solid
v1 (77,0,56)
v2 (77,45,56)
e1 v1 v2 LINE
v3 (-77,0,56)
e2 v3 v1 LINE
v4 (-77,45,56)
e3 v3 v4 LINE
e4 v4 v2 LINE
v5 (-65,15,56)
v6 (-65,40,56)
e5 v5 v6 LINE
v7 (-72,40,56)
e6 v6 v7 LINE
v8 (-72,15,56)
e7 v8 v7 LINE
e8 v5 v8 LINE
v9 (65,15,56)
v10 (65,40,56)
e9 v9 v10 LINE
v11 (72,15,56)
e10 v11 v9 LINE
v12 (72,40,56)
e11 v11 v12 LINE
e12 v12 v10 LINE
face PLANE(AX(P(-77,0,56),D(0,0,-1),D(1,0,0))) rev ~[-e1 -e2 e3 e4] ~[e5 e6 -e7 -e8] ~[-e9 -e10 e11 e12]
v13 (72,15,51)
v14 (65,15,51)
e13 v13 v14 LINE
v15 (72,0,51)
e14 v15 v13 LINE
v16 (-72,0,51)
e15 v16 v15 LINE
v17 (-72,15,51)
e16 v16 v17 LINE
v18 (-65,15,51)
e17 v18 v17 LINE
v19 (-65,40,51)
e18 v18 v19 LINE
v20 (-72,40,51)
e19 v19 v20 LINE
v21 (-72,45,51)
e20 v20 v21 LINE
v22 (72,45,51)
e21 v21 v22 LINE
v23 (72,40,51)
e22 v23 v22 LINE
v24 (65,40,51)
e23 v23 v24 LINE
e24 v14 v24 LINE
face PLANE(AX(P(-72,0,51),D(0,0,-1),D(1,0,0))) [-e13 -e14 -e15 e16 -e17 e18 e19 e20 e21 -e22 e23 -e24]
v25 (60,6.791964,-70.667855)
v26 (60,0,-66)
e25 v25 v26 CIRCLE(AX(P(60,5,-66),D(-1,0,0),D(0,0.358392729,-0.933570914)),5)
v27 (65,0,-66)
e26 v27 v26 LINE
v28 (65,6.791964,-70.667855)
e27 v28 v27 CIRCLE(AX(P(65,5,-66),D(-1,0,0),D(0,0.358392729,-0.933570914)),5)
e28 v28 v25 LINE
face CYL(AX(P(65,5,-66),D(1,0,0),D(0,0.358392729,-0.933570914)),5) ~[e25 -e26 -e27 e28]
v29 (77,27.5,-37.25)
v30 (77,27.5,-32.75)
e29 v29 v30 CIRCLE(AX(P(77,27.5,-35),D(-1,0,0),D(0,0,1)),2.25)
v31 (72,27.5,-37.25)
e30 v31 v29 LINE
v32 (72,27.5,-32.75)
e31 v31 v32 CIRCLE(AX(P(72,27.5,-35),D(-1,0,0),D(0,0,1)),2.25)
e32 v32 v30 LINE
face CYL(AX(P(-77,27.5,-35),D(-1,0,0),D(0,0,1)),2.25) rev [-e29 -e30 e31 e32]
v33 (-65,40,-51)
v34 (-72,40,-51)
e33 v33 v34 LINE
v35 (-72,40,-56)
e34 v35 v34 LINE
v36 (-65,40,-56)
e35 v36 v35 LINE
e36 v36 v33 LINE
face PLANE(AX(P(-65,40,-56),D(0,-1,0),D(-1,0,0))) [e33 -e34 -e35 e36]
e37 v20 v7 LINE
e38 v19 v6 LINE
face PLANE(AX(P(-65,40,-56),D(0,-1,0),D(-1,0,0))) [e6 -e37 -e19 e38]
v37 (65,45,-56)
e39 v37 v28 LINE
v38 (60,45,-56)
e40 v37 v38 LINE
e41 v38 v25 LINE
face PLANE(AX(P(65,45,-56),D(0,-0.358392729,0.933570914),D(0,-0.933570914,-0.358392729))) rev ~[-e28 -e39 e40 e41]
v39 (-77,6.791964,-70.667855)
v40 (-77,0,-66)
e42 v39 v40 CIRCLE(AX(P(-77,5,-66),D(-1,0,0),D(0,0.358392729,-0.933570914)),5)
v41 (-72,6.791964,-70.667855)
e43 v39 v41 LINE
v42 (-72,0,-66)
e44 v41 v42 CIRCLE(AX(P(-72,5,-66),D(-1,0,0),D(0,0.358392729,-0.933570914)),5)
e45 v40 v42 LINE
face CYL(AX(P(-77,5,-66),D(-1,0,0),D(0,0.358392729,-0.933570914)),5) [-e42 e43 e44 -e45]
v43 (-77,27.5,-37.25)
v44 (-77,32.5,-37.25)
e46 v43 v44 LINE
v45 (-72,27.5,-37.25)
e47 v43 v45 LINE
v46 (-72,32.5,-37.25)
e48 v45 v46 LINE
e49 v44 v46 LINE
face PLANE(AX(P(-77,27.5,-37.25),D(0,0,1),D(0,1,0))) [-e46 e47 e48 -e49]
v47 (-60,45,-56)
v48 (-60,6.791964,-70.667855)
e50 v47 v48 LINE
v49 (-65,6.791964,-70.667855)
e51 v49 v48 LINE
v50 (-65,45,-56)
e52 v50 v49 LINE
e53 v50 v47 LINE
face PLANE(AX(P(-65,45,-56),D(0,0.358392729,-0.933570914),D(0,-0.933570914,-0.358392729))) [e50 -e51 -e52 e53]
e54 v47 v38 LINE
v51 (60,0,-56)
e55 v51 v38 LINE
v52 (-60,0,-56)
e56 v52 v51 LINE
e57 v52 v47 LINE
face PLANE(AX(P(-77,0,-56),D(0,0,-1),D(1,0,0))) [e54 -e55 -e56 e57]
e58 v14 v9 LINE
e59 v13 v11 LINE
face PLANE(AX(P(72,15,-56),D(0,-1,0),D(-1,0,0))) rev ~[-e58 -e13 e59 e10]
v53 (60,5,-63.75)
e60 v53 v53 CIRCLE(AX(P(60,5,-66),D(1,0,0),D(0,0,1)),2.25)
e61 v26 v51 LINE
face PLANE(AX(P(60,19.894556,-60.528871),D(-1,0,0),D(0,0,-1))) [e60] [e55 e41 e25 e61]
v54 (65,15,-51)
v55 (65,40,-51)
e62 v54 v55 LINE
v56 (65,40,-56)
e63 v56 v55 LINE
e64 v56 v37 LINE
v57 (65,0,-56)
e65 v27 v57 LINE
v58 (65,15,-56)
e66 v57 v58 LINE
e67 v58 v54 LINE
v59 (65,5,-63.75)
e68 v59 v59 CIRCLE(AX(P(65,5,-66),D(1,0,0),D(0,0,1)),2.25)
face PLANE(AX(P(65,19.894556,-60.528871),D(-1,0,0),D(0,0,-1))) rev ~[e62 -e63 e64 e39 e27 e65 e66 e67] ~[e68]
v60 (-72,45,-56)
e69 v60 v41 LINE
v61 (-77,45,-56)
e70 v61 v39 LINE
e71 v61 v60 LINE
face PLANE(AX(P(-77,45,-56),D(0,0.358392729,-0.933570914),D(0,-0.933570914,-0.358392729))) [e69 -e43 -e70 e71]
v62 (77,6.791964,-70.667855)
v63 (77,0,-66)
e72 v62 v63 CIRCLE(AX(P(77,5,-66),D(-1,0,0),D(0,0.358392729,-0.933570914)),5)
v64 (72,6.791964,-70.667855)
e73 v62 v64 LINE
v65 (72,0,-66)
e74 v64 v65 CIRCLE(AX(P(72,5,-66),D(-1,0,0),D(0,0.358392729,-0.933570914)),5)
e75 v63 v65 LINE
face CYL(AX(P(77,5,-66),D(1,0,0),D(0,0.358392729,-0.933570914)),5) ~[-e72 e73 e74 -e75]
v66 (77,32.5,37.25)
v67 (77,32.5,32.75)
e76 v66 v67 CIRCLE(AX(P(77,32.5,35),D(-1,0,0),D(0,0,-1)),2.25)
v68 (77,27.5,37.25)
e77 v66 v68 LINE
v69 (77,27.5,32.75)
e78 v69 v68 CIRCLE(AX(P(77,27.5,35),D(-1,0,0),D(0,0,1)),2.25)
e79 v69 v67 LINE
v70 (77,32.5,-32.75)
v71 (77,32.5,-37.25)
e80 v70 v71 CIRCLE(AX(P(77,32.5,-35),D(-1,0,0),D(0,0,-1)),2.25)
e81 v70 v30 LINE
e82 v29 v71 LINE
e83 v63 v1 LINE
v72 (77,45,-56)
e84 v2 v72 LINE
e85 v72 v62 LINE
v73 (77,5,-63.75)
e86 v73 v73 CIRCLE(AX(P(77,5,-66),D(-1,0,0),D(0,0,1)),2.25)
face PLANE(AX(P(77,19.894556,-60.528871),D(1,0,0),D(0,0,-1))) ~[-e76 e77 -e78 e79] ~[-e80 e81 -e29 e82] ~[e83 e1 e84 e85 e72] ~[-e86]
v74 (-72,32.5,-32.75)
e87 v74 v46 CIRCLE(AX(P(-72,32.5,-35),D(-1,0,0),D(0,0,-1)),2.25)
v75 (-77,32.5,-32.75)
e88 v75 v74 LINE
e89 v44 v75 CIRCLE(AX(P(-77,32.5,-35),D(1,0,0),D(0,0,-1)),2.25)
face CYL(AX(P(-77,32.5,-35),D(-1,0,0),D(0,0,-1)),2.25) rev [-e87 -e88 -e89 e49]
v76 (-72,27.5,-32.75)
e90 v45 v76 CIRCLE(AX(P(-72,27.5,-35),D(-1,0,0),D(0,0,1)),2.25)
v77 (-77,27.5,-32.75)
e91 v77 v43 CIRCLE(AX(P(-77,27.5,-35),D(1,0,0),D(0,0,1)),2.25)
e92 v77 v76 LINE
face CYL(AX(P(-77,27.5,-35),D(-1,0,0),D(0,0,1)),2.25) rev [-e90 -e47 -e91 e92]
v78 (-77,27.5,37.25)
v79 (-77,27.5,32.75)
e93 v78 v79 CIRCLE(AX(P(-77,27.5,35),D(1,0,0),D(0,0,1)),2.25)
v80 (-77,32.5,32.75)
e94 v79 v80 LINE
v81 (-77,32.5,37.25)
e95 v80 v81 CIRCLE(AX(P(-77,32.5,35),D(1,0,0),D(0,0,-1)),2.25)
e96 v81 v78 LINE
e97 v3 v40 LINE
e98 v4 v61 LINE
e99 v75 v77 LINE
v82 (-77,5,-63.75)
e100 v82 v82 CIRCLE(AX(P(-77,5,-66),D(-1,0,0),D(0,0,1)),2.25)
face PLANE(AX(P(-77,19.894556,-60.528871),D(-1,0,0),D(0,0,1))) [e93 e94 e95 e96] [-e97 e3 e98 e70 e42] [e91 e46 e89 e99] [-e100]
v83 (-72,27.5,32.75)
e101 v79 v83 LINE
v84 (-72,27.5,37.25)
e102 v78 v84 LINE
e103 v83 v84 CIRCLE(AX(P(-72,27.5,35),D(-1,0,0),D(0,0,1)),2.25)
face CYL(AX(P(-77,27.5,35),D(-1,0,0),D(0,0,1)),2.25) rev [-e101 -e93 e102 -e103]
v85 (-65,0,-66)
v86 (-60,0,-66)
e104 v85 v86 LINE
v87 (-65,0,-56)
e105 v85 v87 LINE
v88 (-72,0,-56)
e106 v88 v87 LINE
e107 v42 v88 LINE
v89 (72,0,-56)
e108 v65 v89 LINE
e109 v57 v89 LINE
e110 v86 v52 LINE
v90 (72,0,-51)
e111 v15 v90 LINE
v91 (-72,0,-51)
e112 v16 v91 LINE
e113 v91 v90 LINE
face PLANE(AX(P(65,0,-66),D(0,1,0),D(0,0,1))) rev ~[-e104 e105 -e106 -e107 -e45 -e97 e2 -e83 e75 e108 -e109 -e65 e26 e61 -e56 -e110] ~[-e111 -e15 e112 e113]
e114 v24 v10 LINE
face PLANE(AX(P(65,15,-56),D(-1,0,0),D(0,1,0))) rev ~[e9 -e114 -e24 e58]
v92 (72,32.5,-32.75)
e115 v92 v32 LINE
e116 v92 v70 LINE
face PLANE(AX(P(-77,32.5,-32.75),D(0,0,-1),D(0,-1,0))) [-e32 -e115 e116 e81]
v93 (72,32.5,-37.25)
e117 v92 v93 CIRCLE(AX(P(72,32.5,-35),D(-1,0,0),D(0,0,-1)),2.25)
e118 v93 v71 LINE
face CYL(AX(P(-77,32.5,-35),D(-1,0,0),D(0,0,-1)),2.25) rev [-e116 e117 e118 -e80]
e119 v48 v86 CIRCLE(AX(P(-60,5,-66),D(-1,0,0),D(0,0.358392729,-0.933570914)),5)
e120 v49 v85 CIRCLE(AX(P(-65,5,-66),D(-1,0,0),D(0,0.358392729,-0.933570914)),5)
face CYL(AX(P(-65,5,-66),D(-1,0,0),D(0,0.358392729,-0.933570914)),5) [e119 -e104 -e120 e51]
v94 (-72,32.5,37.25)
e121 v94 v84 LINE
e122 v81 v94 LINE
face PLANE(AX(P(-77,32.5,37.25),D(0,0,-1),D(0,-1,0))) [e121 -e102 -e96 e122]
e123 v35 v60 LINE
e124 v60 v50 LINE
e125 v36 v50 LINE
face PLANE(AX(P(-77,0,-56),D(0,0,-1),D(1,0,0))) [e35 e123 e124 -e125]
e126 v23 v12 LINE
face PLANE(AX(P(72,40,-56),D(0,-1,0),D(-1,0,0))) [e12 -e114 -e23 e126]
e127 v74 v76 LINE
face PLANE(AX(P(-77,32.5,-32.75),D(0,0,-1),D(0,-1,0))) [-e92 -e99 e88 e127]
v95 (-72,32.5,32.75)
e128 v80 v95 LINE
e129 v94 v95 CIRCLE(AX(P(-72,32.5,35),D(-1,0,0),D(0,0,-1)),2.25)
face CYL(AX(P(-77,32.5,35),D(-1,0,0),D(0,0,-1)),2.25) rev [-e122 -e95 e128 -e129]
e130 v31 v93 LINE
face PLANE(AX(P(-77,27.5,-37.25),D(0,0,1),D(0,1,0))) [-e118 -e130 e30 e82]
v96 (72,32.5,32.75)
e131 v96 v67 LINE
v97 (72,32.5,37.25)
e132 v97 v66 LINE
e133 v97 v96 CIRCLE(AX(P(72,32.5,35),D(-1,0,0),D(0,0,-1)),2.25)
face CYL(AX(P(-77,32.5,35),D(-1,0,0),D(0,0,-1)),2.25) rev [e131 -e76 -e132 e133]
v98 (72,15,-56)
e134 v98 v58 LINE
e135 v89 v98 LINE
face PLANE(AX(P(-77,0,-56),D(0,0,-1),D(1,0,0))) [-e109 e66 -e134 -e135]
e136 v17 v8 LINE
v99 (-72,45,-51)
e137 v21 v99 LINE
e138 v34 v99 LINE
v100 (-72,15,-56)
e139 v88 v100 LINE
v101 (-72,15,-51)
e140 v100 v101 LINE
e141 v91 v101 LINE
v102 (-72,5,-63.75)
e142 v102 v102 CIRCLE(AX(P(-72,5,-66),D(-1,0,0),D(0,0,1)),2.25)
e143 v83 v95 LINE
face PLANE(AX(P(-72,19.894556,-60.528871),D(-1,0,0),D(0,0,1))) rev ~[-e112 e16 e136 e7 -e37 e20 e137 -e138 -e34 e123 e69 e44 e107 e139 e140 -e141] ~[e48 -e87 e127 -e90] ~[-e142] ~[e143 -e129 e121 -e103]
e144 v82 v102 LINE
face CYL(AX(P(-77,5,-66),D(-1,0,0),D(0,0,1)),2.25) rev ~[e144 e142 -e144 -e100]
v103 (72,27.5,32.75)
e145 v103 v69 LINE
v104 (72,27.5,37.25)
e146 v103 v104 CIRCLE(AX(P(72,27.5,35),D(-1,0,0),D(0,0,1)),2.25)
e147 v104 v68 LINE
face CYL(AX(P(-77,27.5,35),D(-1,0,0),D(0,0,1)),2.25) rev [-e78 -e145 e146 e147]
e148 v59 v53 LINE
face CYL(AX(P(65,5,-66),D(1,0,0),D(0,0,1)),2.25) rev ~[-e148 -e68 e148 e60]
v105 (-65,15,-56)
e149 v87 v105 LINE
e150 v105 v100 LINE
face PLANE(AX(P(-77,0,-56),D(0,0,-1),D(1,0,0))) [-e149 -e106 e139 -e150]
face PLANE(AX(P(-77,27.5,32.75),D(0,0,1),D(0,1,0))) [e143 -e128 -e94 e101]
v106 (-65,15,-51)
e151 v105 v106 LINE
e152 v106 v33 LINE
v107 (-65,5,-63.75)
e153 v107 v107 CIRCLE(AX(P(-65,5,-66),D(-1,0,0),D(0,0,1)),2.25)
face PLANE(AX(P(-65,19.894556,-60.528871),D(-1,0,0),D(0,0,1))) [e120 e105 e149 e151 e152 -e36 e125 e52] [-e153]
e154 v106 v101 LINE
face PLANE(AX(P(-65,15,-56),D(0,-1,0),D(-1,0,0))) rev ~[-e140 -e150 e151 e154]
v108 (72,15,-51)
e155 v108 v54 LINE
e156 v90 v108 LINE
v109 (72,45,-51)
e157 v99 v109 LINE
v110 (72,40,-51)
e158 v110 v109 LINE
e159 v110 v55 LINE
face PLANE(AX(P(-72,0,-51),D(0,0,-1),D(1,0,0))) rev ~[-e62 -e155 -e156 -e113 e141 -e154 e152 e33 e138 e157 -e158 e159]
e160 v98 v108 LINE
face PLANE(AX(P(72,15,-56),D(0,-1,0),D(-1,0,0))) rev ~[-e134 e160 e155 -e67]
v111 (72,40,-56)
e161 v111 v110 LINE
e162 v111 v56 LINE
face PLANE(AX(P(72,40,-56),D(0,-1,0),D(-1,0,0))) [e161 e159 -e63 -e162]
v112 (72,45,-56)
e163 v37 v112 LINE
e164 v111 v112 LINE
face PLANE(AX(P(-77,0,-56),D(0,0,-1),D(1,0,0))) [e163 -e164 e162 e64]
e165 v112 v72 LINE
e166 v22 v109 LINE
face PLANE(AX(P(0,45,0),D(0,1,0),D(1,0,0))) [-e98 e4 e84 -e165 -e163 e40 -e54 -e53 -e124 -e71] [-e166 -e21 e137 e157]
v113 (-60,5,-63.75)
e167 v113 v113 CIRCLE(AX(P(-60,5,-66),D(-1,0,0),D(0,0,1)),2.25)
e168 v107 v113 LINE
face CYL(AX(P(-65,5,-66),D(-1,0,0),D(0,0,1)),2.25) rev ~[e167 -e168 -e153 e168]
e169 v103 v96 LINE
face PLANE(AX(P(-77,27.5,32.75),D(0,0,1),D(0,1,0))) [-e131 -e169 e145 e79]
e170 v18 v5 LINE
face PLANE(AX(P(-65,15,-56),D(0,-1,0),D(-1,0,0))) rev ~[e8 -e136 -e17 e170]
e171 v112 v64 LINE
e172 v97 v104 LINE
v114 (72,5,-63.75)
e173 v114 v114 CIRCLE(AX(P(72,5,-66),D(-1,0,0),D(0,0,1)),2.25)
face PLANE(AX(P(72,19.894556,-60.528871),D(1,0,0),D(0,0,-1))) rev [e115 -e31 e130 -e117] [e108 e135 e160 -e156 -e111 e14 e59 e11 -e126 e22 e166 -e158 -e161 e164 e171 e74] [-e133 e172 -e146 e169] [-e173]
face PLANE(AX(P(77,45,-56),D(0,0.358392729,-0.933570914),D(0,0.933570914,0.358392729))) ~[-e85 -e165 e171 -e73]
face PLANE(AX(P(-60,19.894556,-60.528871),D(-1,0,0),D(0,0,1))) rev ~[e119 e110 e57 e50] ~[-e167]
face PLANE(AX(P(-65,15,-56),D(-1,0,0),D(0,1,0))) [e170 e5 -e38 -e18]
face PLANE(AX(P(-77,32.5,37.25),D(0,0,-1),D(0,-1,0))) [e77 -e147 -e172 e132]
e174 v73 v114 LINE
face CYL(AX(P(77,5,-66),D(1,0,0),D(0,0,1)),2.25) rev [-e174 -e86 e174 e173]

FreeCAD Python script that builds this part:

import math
import FreeCAD as App
import Part
import Sketcher
from FreeCAD import Vector


def add_polygon(sketch, points):
    """Adds a closed chain of lines whose ends are joined by coincident constraints."""
    first, n = sketch.GeometryCount, len(points)
    for a, b in zip(points, points[1:] + points[:1]):
        sketch.addGeometry(Part.LineSegment(App.Vector(*a, 0), App.Vector(*b, 0)), False)
    for i in range(n):
        sketch.addConstraint(Sketcher.Constraint("Coincident", first + i, 2, first + (i + 1) % n, 1))

doc = App.newDocument("Part")
params = doc.addObject("Spreadsheet::Sheet", "Params")
for row, (alias, value) in enumerate([
    ("sketch1_width", "154 mm"),
    ("sketch1_width2", "144 mm"),
    ("sketch1_height", "112 mm"),
    ("sketch1_height2", "102 mm"),
    ("pad1_length", "45 mm"),
    ("sketch2_width", "5 mm"),
    ("sketch2_radius", "2.25 mm"),
    ("pocket1_length", "180.5 mm"),
    ("sketch3_width", "7 mm"),
    ("sketch3_height", "25 mm"),
    ("pocket2_length", "134 mm"),
    ("sketch4_radius", "5 mm"),
    ("sketch4_diameter", "4.5 mm"),
    ("sketch4_width", "45 mm"),
    ("sketch4_height", "10 mm"),
    ("pad2_length", "5 mm"),
    ("linearpattern_pitch", "12 mm"),
    ("sketch5_radius", "5 mm"),
    ("sketch5_diameter", "4.5 mm"),
    ("sketch5_width", "45 mm"),
    ("sketch5_height", "10 mm"),
    ("pad3_length", "5 mm"),
], start=1):
    params.set(f"A{row}", alias)
    params.set(f"B{row}", "=" + value)
    params.setAlias(f"B{row}", alias)

body = doc.addObject("PartDesign::Body", "Body")

# Sketch on XZ plane
sketch1 = body.newObject("Sketcher::SketchObject", "Sketch")
sketch1.AttachmentSupport = (doc.getObject("XZ_Plane"), [""])
sketch1.MapMode = "FlatFace"
add_polygon(sketch1, [(-77, -56), (-77, 56), (77, 56), (77, -56)])  # lines 0-3
add_polygon(sketch1, [(72, 51), (-72, 51), (-72, -51), (72, -51)])  # lines 4-7
sketch1.addConstraint([
    Sketcher.Constraint("Vertical", 0),
    Sketcher.Constraint("Horizontal", 1),
    Sketcher.Constraint("Vertical", 2),
    Sketcher.Constraint("Horizontal", 3),
    Sketcher.Constraint("Horizontal", 4),
    Sketcher.Constraint("Vertical", 5),
    Sketcher.Constraint("Horizontal", 6),
    Sketcher.Constraint("Vertical", 7),
    Sketcher.Constraint("Symmetric", 0, 2, 2, 2, -1, 1),
    Sketcher.Constraint("Symmetric", 4, 2, 6, 2, -1, 1),
    Sketcher.Constraint("DistanceX", 1, 1, 1, 2, 154.0),
    Sketcher.Constraint("DistanceX", 4, 2, 4, 1, 144.0),
    Sketcher.Constraint("DistanceY", 0, 1, 0, 2, 112.0),
    Sketcher.Constraint("DistanceY", 5, 2, 5, 1, 102.0),
])
sketch1.setExpression("Constraints[18]", "Params.sketch1_width")
sketch1.setExpression("Constraints[19]", "Params.sketch1_width2")
sketch1.setExpression("Constraints[20]", "Params.sketch1_height")
sketch1.setExpression("Constraints[21]", "Params.sketch1_height2")
pad1 = body.newObject("PartDesign::Pad", "Pad")
pad1.Profile = sketch1
pad1.setExpression("Length", "Params.pad1_length")
pad1.Reversed = True

# Sketch on YZ plane
sketch2 = body.newObject("Sketcher::SketchObject", "Sketch001")
sketch2.AttachmentSupport = (doc.getObject("YZ_Plane"), [""])
sketch2.MapMode = "FlatFace"
sketch2.AttachmentOffset = App.Placement(Vector(0, 0, -77), App.Rotation())
sketch2.addGeometry([
    Part.LineSegment(Vector(27.5, -32.8, 0), Vector(32.5, -32.8, 0)),  # 0
    Part.ArcOfCircle(Part.Circle(Vector(32.5, -35, 0), Vector(0, 0, 1), 2.2), math.radians(-90), math.radians(90)),  # 1
    Part.LineSegment(Vector(32.5, -37.2, 0), Vector(27.5, -37.2, 0)),  # 2
    Part.ArcOfCircle(Part.Circle(Vector(27.5, -35, 0), Vector(0, 0, 1), 2.2), math.radians(90), math.radians(270)),  # 3
    Part.LineSegment(Vector(27.5, 37.2, 0), Vector(32.5, 37.2, 0)),  # 4
    Part.ArcOfCircle(Part.Circle(Vector(32.5, 35, 0), Vector(0, 0, 1), 2.2), math.radians(-90), math.radians(90)),  # 5
    Part.LineSegment(Vector(32.5, 32.8, 0), Vector(27.5, 32.8, 0)),  # 6
    Part.ArcOfCircle(Part.Circle(Vector(27.5, 35, 0), Vector(0, 0, 1), 2.2), math.radians(90), math.radians(270)),  # 7
], False)
sketch2.addConstraint([
    Sketcher.Constraint("Tangent", 0, 2, 1, 2),
    Sketcher.Constraint("Tangent", 1, 1, 2, 1),
    Sketcher.Constraint("Tangent", 2, 2, 3, 2),
    Sketcher.Constraint("Tangent", 3, 1, 0, 1),
    Sketcher.Constraint("Tangent", 4, 2, 5, 2),
    Sketcher.Constraint("Tangent", 5, 1, 6, 1),
    Sketcher.Constraint("Tangent", 6, 2, 7, 2),
    Sketcher.Constraint("Tangent", 7, 1, 4, 1),
    Sketcher.Constraint("Horizontal", 0),
    Sketcher.Constraint("Horizontal", 2),
    Sketcher.Constraint("Horizontal", 4),
    Sketcher.Constraint("Horizontal", 6),
    Sketcher.Constraint("Equal", 3, 5),
    Sketcher.Constraint("Symmetric", 1, 3, 5, 3, -1),
    Sketcher.Constraint("Vertical", 3, 3, 7, 3),
    Sketcher.Constraint("DistanceX", 0, 1, 0, 2, 5.0),
    Sketcher.Constraint("Radius", 1, 2.25),
    Sketcher.Constraint("DistanceY", 1, 3, -1, 1, 35.0),
    Sketcher.Constraint("DistanceX", -1, 1, 1, 3, 32.5),
])
sketch2.setExpression("Constraints[15]", "Params.sketch2_width")
sketch2.setExpression("Constraints[16]", "Params.sketch2_radius")
pocket1 = body.newObject("PartDesign::Pocket", "Pocket")
pocket1.Profile = sketch2
pocket1.setExpression("Length", "Params.pocket1_length")
pocket1.Reversed = True

# Sketch on XY plane
sketch3 = body.newObject("Sketcher::SketchObject", "Sketch002")
sketch3.AttachmentSupport = (doc.getObject("XY_Plane"), [""])
sketch3.MapMode = "FlatFace"
sketch3.AttachmentOffset = App.Placement(Vector(0, 0, -56), App.Rotation())
add_polygon(sketch3, [(72, 40), (72, 15), (65, 15), (65, 40)])  # lines 0-3
add_polygon(sketch3, [(-65, 40), (-65, 15), (-72, 15), (-72, 40)])  # lines 4-7
sketch3.addConstraint([
    Sketcher.Constraint("Vertical", 0),
    Sketcher.Constraint("Horizontal", 1),
    Sketcher.Constraint("Vertical", 2),
    Sketcher.Constraint("Horizontal", 3),
    Sketcher.Constraint("Vertical", 4),
    Sketcher.Constraint("Horizontal", 5),
    Sketcher.Constraint("Vertical", 6),
    Sketcher.Constraint("Horizontal", 7),
    Sketcher.Constraint("Symmetric", 1, 2, 4, 2, -2),
    Sketcher.Constraint("Symmetric", 3, 2, 6, 2, -2),
    Sketcher.Constraint("DistanceX", 1, 2, 1, 1, 7.0),
    Sketcher.Constraint("DistanceY", 0, 2, 0, 1, 25.0),
    Sketcher.Constraint("DistanceX", -1, 1, 0, 2, 72.0),
    Sketcher.Constraint("DistanceY", -1, 1, 0, 2, 15.0),
])
sketch3.setExpression("Constraints[18]", "Params.sketch3_width")
sketch3.setExpression("Constraints[19]", "Params.sketch3_height")
pocket2 = body.newObject("PartDesign::Pocket", "Pocket001")
pocket2.Profile = sketch3
pocket2.setExpression("Length", "Params.pocket2_length")
pocket2.Reversed = True

# Sketch on YZ plane
sketch4 = body.newObject("Sketcher::SketchObject", "Sketch003")
sketch4.AttachmentSupport = (doc.getObject("YZ_Plane"), [""])
sketch4.MapMode = "FlatFace"
sketch4.AttachmentOffset = App.Placement(Vector(0, 0, -77), App.Rotation())
sketch4.addGeometry([
    Part.LineSegment(Vector(0, -66, 0), Vector(0, -56, 0)),  # 0
    Part.LineSegment(Vector(0, -56, 0), Vector(45, -56, 0)),  # 1
    Part.LineSegment(Vector(45, -56, 0), Vector(6.8, -70.7, 0)),  # 2
    Part.ArcOfCircle(Part.Circle(Vector(5, -66, 0), Vector(0, 0, 1), 5), math.radians(180), math.radians(291)),  # 3
    Part.Circle(Vector(5, -66, 0), Vector(0, 0, 1), 2.2),  # 4
], False)
sketch4.addConstraint([
    Sketcher.Constraint("Coincident", 0, 2, 1, 1),
    Sketcher.Constraint("Coincident", 1, 2, 2, 1),
    Sketcher.Constraint("Tangent", 2, 2, 3, 2),
    Sketcher.Constraint("Tangent", 3, 1, 0, 1),
    Sketcher.Constraint("Vertical", 0),
    Sketcher.Constraint("Horizontal", 1),
    Sketcher.Constraint("Coincident", 4, 3, 3, 3),
    Sketcher.Constraint("PointOnObject", 0, 2, -2),
    Sketcher.Constraint("Radius", 3, 5.0),
    Sketcher.Constraint("Diameter", 4, 4.5),
    Sketcher.Constraint("DistanceX", 1, 1, 1, 2, 45.0),
    Sketcher.Constraint("DistanceY", 0, 1, 0, 2, 10.0),
    Sketcher.Constraint("DistanceY", 3, 3, -1, 1, 66.0),
])
sketch4.setExpression("Constraints[8]", "Params.sketch4_radius")
sketch4.setExpression("Constraints[9]", "Params.sketch4_diameter")
sketch4.setExpression("Constraints[10]", "Params.sketch4_width")
sketch4.setExpression("Constraints[11]", "Params.sketch4_height")
pad2 = body.newObject("PartDesign::Pad", "Pad001")
pad2.Profile = sketch4
pad2.setExpression("Length", "Params.pad2_length")
doc.recompute()

linearpattern = body.newObject("PartDesign::LinearPattern", "LinearPattern")
linearpattern.Originals = [pad2]
linearpattern.Direction = (doc.getObject("X_Axis"), [""])
linearpattern.Mode = "offset"
linearpattern.setExpression("Offset", "Params.linearpattern_pitch")
linearpattern.Occurrences = 2
body.Tip = linearpattern
doc.recompute()

mirrored = body.newObject("PartDesign::Mirrored", "Mirrored")
mirrored.Originals = [pad2]
mirrored.MirrorPlane = (doc.getObject("YZ_Plane"), [""])
body.Tip = mirrored

# Sketch on YZ plane
sketch5 = body.newObject("Sketcher::SketchObject", "Sketch004")
sketch5.AttachmentSupport = (doc.getObject("YZ_Plane"), [""])
sketch5.MapMode = "FlatFace"
sketch5.AttachmentOffset = App.Placement(Vector(0, 0, 65), App.Rotation())
sketch5.addGeometry([
    Part.LineSegment(Vector(0, -56, 0), Vector(0, -66, 0)),  # 0
    Part.ArcOfCircle(Part.Circle(Vector(5, -66, 0), Vector(0, 0, 1), 5), math.radians(180), math.radians(291)),  # 1
    Part.LineSegment(Vector(6.8, -70.7, 0), Vector(45, -56, 0)),  # 2
    Part.LineSegment(Vector(45, -56, 0), Vector(0, -56, 0)),  # 3
    Part.Circle(Vector(5, -66, 0), Vector(0, 0, 1), 2.2),  # 4
], False)
sketch5.addConstraint([
    Sketcher.Constraint("Tangent", 0, 2, 1, 1),
    Sketcher.Constraint("Tangent", 1, 2, 2, 1),
    Sketcher.Constraint("Coincident", 2, 2, 3, 1),
    Sketcher.Constraint("Coincident", 3, 2, 0, 1),
    Sketcher.Constraint("Vertical", 0),
    Sketcher.Constraint("Horizontal", 3),
    Sketcher.Constraint("Coincident", 4, 3, 1, 3),
    Sketcher.Constraint("PointOnObject", 0, 2, -2),
    Sketcher.Constraint("Radius", 1, 5.0),
    Sketcher.Constraint("Diameter", 4, 4.5),
    Sketcher.Constraint("DistanceX", 3, 2, 3, 1, 45.0),
    Sketcher.Constraint("DistanceY", 0, 2, 0, 1, 10.0),
    Sketcher.Constraint("DistanceY", 1, 3, -1, 1, 66.0),
])
sketch5.setExpression("Constraints[8]", "Params.sketch5_radius")
sketch5.setExpression("Constraints[9]", "Params.sketch5_diameter")
sketch5.setExpression("Constraints[10]", "Params.sketch5_width")
sketch5.setExpression("Constraints[11]", "Params.sketch5_height")
pad3 = body.newObject("PartDesign::Pad", "Pad002")
pad3.Profile = sketch5
pad3.setExpression("Length", "Params.pad3_length")
pad3.Reversed = True

doc.recompute()
